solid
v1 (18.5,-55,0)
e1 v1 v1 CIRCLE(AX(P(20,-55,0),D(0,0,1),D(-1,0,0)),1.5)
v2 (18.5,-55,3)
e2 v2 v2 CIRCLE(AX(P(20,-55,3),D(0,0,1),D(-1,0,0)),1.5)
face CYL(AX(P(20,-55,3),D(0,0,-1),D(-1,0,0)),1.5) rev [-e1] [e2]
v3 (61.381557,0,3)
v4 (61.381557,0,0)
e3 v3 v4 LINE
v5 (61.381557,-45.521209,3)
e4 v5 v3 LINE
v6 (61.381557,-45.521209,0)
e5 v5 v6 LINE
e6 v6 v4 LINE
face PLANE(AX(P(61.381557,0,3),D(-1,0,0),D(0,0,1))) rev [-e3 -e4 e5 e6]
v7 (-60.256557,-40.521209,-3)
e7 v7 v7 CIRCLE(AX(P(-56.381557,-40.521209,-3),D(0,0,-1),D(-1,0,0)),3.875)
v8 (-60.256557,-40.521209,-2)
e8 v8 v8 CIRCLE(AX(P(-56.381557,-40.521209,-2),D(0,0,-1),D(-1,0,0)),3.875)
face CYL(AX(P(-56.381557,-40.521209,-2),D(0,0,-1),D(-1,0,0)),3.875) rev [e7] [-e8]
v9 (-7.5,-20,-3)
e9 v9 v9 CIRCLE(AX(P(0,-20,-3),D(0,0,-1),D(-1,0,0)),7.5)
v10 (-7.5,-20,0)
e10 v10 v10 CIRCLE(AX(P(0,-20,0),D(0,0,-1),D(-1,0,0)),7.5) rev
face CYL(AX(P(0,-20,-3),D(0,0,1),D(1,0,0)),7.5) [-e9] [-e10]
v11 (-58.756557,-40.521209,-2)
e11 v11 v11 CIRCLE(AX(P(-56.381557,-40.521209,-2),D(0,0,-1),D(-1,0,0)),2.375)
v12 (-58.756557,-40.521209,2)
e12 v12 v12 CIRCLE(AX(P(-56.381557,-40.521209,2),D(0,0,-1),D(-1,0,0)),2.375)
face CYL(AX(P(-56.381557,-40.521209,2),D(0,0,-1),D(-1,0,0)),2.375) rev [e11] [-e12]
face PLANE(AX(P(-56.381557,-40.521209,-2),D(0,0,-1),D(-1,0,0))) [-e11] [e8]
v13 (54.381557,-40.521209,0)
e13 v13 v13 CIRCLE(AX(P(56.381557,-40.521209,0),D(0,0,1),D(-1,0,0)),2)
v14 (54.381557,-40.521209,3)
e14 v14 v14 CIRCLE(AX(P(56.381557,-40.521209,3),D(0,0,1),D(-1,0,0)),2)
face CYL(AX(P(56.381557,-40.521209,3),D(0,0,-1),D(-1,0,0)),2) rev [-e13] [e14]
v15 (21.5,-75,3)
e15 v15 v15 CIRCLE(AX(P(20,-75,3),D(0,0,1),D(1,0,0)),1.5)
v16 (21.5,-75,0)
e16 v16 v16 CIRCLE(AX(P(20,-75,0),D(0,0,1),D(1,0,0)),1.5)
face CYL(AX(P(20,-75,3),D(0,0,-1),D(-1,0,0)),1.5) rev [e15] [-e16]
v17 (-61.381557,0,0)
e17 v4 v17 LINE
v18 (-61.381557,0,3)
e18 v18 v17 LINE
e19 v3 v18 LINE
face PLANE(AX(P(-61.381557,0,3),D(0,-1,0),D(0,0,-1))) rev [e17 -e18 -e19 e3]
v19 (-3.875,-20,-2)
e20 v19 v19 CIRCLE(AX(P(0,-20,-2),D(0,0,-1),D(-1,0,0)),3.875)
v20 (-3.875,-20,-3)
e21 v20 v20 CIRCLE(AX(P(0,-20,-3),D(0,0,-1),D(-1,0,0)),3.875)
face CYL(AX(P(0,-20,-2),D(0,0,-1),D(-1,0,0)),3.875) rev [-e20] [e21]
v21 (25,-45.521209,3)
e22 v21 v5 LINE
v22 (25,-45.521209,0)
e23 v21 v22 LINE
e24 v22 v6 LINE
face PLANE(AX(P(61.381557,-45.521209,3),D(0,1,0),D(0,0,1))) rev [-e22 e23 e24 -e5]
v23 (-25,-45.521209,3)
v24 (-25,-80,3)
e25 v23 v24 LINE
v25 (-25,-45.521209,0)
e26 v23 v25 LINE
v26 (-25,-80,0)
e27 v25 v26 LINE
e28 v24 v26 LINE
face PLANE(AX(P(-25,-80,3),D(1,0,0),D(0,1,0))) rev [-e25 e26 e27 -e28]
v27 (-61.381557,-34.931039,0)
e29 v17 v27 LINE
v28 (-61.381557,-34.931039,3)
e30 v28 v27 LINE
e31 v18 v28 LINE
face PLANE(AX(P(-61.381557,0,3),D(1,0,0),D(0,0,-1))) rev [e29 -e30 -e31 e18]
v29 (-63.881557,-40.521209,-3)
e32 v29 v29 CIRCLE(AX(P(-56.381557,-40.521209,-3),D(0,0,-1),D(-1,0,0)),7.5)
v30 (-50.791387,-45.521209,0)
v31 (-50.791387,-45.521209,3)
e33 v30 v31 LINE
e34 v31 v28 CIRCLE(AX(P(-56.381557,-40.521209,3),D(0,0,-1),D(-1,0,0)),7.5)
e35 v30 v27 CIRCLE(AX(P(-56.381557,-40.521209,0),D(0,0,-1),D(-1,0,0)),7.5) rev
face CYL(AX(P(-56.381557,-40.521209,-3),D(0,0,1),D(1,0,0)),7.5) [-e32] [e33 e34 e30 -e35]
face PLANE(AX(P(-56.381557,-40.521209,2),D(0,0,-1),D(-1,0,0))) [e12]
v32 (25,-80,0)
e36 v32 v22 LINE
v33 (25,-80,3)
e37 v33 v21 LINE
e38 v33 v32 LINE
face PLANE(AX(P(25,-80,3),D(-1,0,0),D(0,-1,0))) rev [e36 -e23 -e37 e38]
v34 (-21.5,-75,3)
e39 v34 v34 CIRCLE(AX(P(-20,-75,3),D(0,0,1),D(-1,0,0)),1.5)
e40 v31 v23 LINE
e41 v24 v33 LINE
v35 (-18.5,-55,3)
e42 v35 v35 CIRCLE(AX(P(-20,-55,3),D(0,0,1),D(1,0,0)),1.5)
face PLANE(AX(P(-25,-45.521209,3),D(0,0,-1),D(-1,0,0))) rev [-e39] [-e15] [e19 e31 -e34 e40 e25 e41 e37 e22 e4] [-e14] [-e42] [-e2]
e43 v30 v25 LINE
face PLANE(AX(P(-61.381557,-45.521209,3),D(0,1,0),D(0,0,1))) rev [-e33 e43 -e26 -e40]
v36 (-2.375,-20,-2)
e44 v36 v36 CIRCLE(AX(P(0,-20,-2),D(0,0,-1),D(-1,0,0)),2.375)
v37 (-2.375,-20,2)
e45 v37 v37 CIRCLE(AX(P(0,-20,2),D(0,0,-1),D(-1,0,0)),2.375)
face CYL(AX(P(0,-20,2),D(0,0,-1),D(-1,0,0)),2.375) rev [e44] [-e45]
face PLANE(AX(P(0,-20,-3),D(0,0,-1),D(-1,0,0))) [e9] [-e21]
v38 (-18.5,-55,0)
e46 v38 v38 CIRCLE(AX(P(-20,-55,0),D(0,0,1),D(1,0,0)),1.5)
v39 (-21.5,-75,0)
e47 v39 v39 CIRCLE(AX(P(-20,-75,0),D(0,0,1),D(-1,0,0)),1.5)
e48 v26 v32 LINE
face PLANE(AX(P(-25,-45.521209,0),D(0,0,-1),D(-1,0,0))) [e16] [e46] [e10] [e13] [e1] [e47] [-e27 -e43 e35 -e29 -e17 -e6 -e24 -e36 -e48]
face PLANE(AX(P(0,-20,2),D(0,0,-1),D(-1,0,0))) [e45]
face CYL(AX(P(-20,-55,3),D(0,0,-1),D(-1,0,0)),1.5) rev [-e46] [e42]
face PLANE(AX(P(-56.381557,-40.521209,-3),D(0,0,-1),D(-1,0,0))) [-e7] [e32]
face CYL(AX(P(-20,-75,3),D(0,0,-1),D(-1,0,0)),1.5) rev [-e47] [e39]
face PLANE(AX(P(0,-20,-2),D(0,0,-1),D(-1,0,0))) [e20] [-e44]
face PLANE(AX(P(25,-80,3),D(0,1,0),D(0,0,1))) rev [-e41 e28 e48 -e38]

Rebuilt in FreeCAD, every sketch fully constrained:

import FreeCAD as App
import Part
import Sketcher

V = App.Vector
Q = App.Units.Quantity


def add_polygon(sketch, points):
    """Adds a closed chain of lines whose ends are joined by coincident constraints."""
    first, n = sketch.GeometryCount, len(points)
    for a, b in zip(points, points[1:] + points[:1]):
        sketch.addGeometry(Part.LineSegment(App.Vector(*a, 0), App.Vector(*b, 0)), False)
    for i in range(n):
        sketch.addConstraint(Sketcher.Constraint("Coincident", first + i, 2, first + (i + 1) % n, 1))

doc = App.newDocument("Part")
body = doc.addObject("PartDesign::Body", "Body")

# Sketch on XY plane
sketch1 = body.newObject("Sketcher::SketchObject", "Sketch")
sketch1.AttachmentSupport = (doc.getObject("XY_Plane"), [""])
sketch1.MapMode = "FlatFace"
add_polygon(sketch1, [(61.381557, 0), (-61.381557, 0), (-61.381557, -45.521209), (-25, -45.521209), (-25, -80), (25, -80), (25, -45.521209), (61.381557, -45.521209)])  # lines 0-7
sketch1.addGeometry(Part.Circle(V(20, -75, 0), V(0, 0, 1), 1.5), False)  # 8
sketch1.addGeometry(Part.Circle(V(20, -55, 0), V(0, 0, 1), 1.5), False)  # 9
sketch1.addGeometry(Part.Circle(V(-20, -75, 0), V(0, 0, 1), 1.5), False)  # 10
sketch1.addGeometry(Part.Circle(V(-20, -55, 0), V(0, 0, 1), 1.5), False)  # 11
sketch1.addGeometry(Part.Circle(V(56.381557, -40.521209, 0), V(0, 0, 1), 2), False)  # 12
sketch1.addGeometry(Part.Circle(V(0, -20, 0), V(0, 0, 1), 2), False)  # 13
sketch1.addGeometry(Part.Circle(V(-56.381557, -40.521209, 0), V(0, 0, 1), 2), False)  # 14
sketch1.addConstraint(Sketcher.Constraint("Horizontal", 0))
sketch1.addConstraint(Sketcher.Constraint("Vertical", 1))
sketch1.addConstraint(Sketcher.Constraint("Horizontal", 2))
sketch1.addConstraint(Sketcher.Constraint("Vertical", 3))
sketch1.addConstraint(Sketcher.Constraint("Horizontal", 4))
sketch1.addConstraint(Sketcher.Constraint("Vertical", 5))
sketch1.addConstraint(Sketcher.Constraint("Horizontal", 6))
sketch1.addConstraint(Sketcher.Constraint("Vertical", 7))
sketch1.addConstraint(Sketcher.Constraint("Equal", 8, 9))
sketch1.addConstraint(Sketcher.Constraint("Equal", 9, 10))
sketch1.addConstraint(Sketcher.Constraint("Equal", 10, 11))
sketch1.addConstraint(Sketcher.Constraint("Equal", 12, 13))
sketch1.addConstraint(Sketcher.Constraint("Equal", 13, 14))
sketch1.addConstraint(Sketcher.Constraint("Symmetric", 0, 2, 7, 2, -1, 1))
sketch1.addConstraint(Sketcher.Constraint("Symmetric", 8, 3, 10, 3, -2))
sketch1.addConstraint(Sketcher.Constraint("Symmetric", 9, 3, 11, 3, -2))
sketch1.addConstraint(Sketcher.Constraint("Symmetric", 12, 3, 14, 3, -2))
sketch1.addConstraint(Sketcher.Constraint("Symmetric", 2, 2, 5, 2, -2))
sketch1.addConstraint(Sketcher.Constraint("PointOnObject", 13, 3, -2))
sketch1.addConstraint(Sketcher.Constraint("Vertical", 8, 3, 9, 3))
sketch1.addConstraint(Sketcher.Constraint("Diameter", 8, Q("3 mm")))
sketch1.addConstraint(Sketcher.Constraint("Diameter", 12, Q("4 mm")))
sketch1.addConstraint(Sketcher.Constraint("DistanceX", 4, 1, 4, 2, Q("50 mm")))
sketch1.addConstraint(Sketcher.Constraint("DistanceX", -1, 1, 8, 3, Q("20 mm")))
sketch1.addConstraint(Sketcher.Constraint("DistanceY", 8, 3, -1, 1, Q("75 mm")))
sketch1.addConstraint(Sketcher.Constraint("DistanceY", 9, 3, -1, 1, Q("55 mm")))
sketch1.addConstraint(Sketcher.Constraint("DistanceY", 13, 3, -1, 1, Q("20 mm")))
sketch1.addConstraint(Sketcher.Constraint("DistanceY", 3, 2, -1, 1, Q("80 mm")))
sketch1.addConstraint(Sketcher.Constraint("DistanceX", 0, 2, 14, 3, Q("5 mm")))
sketch1.addConstraint(Sketcher.Constraint("DistanceY", 1, 2, 14, 3, Q("5 mm")))
sketch1.addConstraint(Sketcher.Constraint("DistanceY", 1, 2, 1, 1, Q("45.521209 mm")))
sketch1.addConstraint(Sketcher.Constraint("DistanceX", 0, 2, 0, 1, Q("122.763114 mm")))
pad1 = body.newObject("PartDesign::Pad", "Pad")
pad1.Profile = sketch1
pad1.Length = 3

# Sketch on XY plane
sketch2 = body.newObject("Sketcher::SketchObject", "Sketch001")
sketch2.AttachmentSupport = (doc.getObject("XY_Plane"), [""])
sketch2.MapMode = "FlatFace"
sketch2.AttachmentOffset = App.Placement(V(0, 0, 3), App.Rotation())
sketch2.addGeometry(Part.Circle(V(-56.381557, -40.521209, 0), V(0, 0, 1), 7.5), False)
sketch2.addGeometry(Part.Circle(V(0, -20, 0), V(0, 0, 1), 7.5), False)
sketch2.addConstraint(Sketcher.Constraint("Equal", 0, 1))
sketch2.addConstraint(Sketcher.Constraint("PointOnObject", 1, 3, -2))
sketch2.addConstraint(Sketcher.Constraint("Diameter", 0, Q("15 mm")))
sketch2.addConstraint(Sketcher.Constraint("DistanceY", 1, 3, -1, 1, Q("20 mm")))
sketch2.addConstraint(Sketcher.Constraint("DistanceY", 0, 3, -1, 1, Q("40.521209 mm")))
sketch2.addConstraint(Sketcher.Constraint("DistanceX", 0, 3, -1, 1, Q("56.381557 mm")))
pad2 = body.newObject("PartDesign::Pad", "Pad001")
pad2.Profile = sketch2
pad2.Length = 6
pad2.Reversed = True

# Sketch on XY plane
sketch3 = body.newObject("Sketcher::SketchObject", "Sketch002")
sketch3.AttachmentSupport = (doc.getObject("XY_Plane"), [""])
sketch3.MapMode = "FlatFace"
sketch3.AttachmentOffset = App.Placement(V(0, 0, -3), App.Rotation())
sketch3.addGeometry(Part.Circle(V(-56.381557, -40.521209, 0), V(0, 0, 1), 3.875), False)
sketch3.addGeometry(Part.Circle(V(0, -20, 0), V(0, 0, 1), 3.875), False)
sketch3.addConstraint(Sketcher.Constraint("Equal", 0, 1))
sketch3.addConstraint(Sketcher.Constraint("PointOnObject", 1, 3, -2))
sketch3.addConstraint(Sketcher.Constraint("Diameter", 0, Q("7.75 mm")))
sketch3.addConstraint(Sketcher.Constraint("DistanceY", 1, 3, -1, 1, Q("20 mm")))
sketch3.addConstraint(Sketcher.Constraint("DistanceY", 0, 3, -1, 1, Q("40.521209 mm")))
sketch3.addConstraint(Sketcher.Constraint("DistanceX", 0, 3, -1, 1, Q("56.381557 mm")))
pocket1 = body.newObject("PartDesign::Pocket", "Pocket")
pocket1.Profile = sketch3
pocket1.Length = 1
pocket1.Reversed = True

# Sketch on XY plane
sketch4 = body.newObject("Sketcher::SketchObject", "Sketch003")
sketch4.AttachmentSupport = (doc.getObject("XY_Plane"), [""])
sketch4.MapMode = "FlatFace"
sketch4.AttachmentOffset = App.Placement(V(0, 0, -2), App.Rotation())
sketch4.addGeometry(Part.Circle(V(-56.381557, -40.521209, 0), V(0, 0, 1), 2.375), False)
sketch4.addGeometry(Part.Circle(V(0, -20, 0), V(0, 0, 1), 2.375), False)
sketch4.addConstraint(Sketcher.Constraint("Equal", 0, 1))
sketch4.addConstraint(Sketcher.Constraint("PointOnObject", 1, 3, -2))
sketch4.addConstraint(Sketcher.Constraint("Diameter", 0, Q("4.75 mm")))
sketch4.addConstraint(Sketcher.Constraint("DistanceY", 1, 3, -1, 1, Q("20 mm")))
sketch4.addConstraint(Sketcher.Constraint("DistanceY", 0, 3, -1, 1, Q("40.521209 mm")))
sketch4.addConstraint(Sketcher.Constraint("DistanceX", 0, 3, -1, 1, Q("56.381557 mm")))
pocket2 = body.newObject("PartDesign::Pocket", "Pocket001")
pocket2.Profile = sketch4
pocket2.Length = 4
pocket2.Reversed = True

doc.recompute()
